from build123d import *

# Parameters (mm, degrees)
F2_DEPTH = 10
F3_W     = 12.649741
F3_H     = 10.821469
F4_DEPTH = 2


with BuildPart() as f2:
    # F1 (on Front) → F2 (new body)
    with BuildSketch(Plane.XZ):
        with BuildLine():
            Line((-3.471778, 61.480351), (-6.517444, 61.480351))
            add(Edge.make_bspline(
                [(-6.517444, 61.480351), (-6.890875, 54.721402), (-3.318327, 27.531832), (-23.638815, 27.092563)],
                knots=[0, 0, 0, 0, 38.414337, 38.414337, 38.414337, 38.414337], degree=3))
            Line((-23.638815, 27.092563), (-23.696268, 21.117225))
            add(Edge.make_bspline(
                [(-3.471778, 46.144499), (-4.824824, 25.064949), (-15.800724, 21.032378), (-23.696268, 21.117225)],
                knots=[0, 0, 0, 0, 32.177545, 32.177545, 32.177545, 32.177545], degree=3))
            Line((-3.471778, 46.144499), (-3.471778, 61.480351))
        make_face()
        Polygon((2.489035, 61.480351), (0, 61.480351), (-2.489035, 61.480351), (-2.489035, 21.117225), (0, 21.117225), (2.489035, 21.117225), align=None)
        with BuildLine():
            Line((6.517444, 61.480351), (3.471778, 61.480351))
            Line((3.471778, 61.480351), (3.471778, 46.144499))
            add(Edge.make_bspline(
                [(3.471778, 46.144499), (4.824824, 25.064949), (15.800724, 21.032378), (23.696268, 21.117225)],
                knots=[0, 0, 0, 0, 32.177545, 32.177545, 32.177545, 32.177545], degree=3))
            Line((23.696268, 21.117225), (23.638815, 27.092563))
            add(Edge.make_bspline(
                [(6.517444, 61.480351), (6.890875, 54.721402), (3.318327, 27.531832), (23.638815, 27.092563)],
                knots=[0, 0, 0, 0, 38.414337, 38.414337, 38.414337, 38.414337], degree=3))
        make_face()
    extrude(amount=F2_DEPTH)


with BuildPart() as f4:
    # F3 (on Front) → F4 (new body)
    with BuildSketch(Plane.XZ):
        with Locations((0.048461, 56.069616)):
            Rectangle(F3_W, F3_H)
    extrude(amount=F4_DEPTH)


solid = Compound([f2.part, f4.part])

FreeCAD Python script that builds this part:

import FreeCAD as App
import Part
import Sketcher
from FreeCAD import Vector
Q = App.Units.Quantity

doc = App.newDocument("Part")
body = doc.addObject("PartDesign::Body", "Body")
body.AllowCompound = True

# Sketch on XZ plane
sketch1 = body.newObject("Sketcher::SketchObject", "Sketch")
sketch1.AttachmentSupport = (doc.getObject("XZ_Plane"), [""])
sketch1.MapMode = "FlatFace"
sketch1.addGeometry(Part.LineSegment(Vector(-3.471778, 61.480351, 0), Vector(-6.517444, 61.480351, 0)), False)
sketch1.addGeometry(Part.BSplineCurve([Vector(-6.517444, 61.480351, 0), Vector(-6.890875, 54.721402, 0), Vector(-3.318327, 27.531832, 0), Vector(-23.638815, 27.092563, 0)], [4, 4], [0, 38.414337], False, 3, [1, 1, 1, 1], False), False)
sketch1.addGeometry(Part.LineSegment(Vector(-23.638815, 27.092563, 0), Vector(-23.696268, 21.117225, 0)), False)
sketch1.addGeometry(Part.BSplineCurve([Vector(-3.471778, 46.144499, 0), Vector(-4.824824, 25.064949, 0), Vector(-15.800724, 21.032378, 0), Vector(-23.696268, 21.117225, 0)], [4, 4], [0, 32.177545], False, 3, [1, 1, 1, 1], False), False)
sketch1.addGeometry(Part.LineSegment(Vector(-3.471778, 46.144499, 0), Vector(-3.471778, 61.480351, 0)), False)
sketch1.addGeometry(Part.LineSegment(Vector(2.489035, 61.480351, 0), Vector(-2.489035, 61.480351, 0)), False)
sketch1.addGeometry(Part.LineSegment(Vector(-2.489035, 61.480351, 0), Vector(-2.489035, 21.117225, 0)), False)
sketch1.addGeometry(Part.LineSegment(Vector(-2.489035, 21.117225, 0), Vector(2.489035, 21.117225, 0)), False)
sketch1.addGeometry(Part.LineSegment(Vector(2.489035, 21.117225, 0), Vector(2.489035, 61.480351, 0)), False)
sketch1.addGeometry(Part.LineSegment(Vector(6.517444, 61.480351, 0), Vector(3.471778, 61.480351, 0)), False)
sketch1.addGeometry(Part.LineSegment(Vector(3.471778, 61.480351, 0), Vector(3.471778, 46.144499, 0)), False)
sketch1.addGeometry(Part.BSplineCurve([Vector(3.471778, 46.144499, 0), Vector(4.824824, 25.064949, 0), Vector(15.800724, 21.032378, 0), Vector(23.696268, 21.117225, 0)], [4, 4], [0, 32.177545], False, 3, [1, 1, 1, 1], False), False)
sketch1.addGeometry(Part.LineSegment(Vector(23.696268, 21.117225, 0), Vector(23.638815, 27.092563, 0)), False)
sketch1.addGeometry(Part.BSplineCurve([Vector(6.517444, 61.480351, 0), Vector(6.890875, 54.721402, 0), Vector(3.318327, 27.531832, 0), Vector(23.638815, 27.092563, 0)], [4, 4], [0, 38.414337], False, 3, [1, 1, 1, 1], False), False)
sketch1.addConstraint(Sketcher.Constraint("Block", 1))
sketch1.addConstraint(Sketcher.Constraint("Block", 3))
sketch1.addConstraint(Sketcher.Constraint("Block", 11))
sketch1.addConstraint(Sketcher.Constraint("Block", 13))
sketch1.addConstraint(Sketcher.Constraint("Coincident", 0, 2, 1, 1))
sketch1.addConstraint(Sketcher.Constraint("Coincident", 1, 2, 2, 1))
sketch1.addConstraint(Sketcher.Constraint("Coincident", 2, 2, 3, 2))
sketch1.addConstraint(Sketcher.Constraint("Coincident", 3, 1, 4, 1))
sketch1.addConstraint(Sketcher.Constraint("Coincident", 4, 2, 0, 1))
sketch1.addConstraint(Sketcher.Constraint("Coincident", 5, 2, 6, 1))
sketch1.addConstraint(Sketcher.Constraint("Coincident", 6, 2, 7, 1))
sketch1.addConstraint(Sketcher.Constraint("Coincident", 7, 2, 8, 1))
sketch1.addConstraint(Sketcher.Constraint("Coincident", 8, 2, 5, 1))
sketch1.addConstraint(Sketcher.Constraint("Coincident", 9, 2, 10, 1))
sketch1.addConstraint(Sketcher.Constraint("Coincident", 10, 2, 11, 1))
sketch1.addConstraint(Sketcher.Constraint("Coincident", 11, 2, 12, 1))
sketch1.addConstraint(Sketcher.Constraint("Coincident", 12, 2, 13, 2))
sketch1.addConstraint(Sketcher.Constraint("Coincident", 13, 1, 9, 1))
sketch1.addConstraint(Sketcher.Constraint("Horizontal", 0))
sketch1.addConstraint(Sketcher.Constraint("Vertical", 4))
sketch1.addConstraint(Sketcher.Constraint("Horizontal", 5))
sketch1.addConstraint(Sketcher.Constraint("Vertical", 6))
sketch1.addConstraint(Sketcher.Constraint("Horizontal", 7))
sketch1.addConstraint(Sketcher.Constraint("Vertical", 8))
sketch1.addConstraint(Sketcher.Constraint("Horizontal", 9))
sketch1.addConstraint(Sketcher.Constraint("Vertical", 10))
sketch1.addConstraint(Sketcher.Constraint("Horizontal", 4, 2, 5, 2))
sketch1.addConstraint(Sketcher.Constraint("Horizontal", 2, 2, 6, 2))
sketch1.addConstraint(Sketcher.Constraint("DistanceX", 5, 2, 5, 1, Q("4.97807 mm")))
sketch1.addConstraint(Sketcher.Constraint("DistanceX", 0, 2, 5, 2, Q("4.028409 mm")))
pad1 = body.newObject("PartDesign::Pad", "Pad")
pad1.Profile = sketch1
pad1.Length = 10
body2 = doc.addObject("PartDesign::Body", "Body001")

# Sketch on XZ plane
sketch2 = body2.newObject("Sketcher::SketchObject", "Sketch001")
sketch2.AttachmentSupport = (doc.getObject("XZ_Plane001"), [""])
sketch2.MapMode = "FlatFace"
sketch2.addGeometry(Part.LineSegment(Vector(-6.276409, 61.480351, 0), Vector(-6.276409, 50.658881, 0)), False)
sketch2.addGeometry(Part.LineSegment(Vector(-6.276409, 50.658881, 0), Vector(6.373331, 50.658881, 0)), False)
sketch2.addGeometry(Part.LineSegment(Vector(6.373331, 50.658881, 0), Vector(6.373331, 61.480351, 0)), False)
sketch2.addGeometry(Part.LineSegment(Vector(6.373331, 61.480351, 0), Vector(-6.276409, 61.480351, 0)), False)
sketch2.addConstraint(Sketcher.Constraint("Coincident", 0, 2, 1, 1))
sketch2.addConstraint(Sketcher.Constraint("Coincident", 1, 2, 2, 1))
sketch2.addConstraint(Sketcher.Constraint("Coincident", 2, 2, 3, 1))
sketch2.addConstraint(Sketcher.Constraint("Coincident", 3, 2, 0, 1))
sketch2.addConstraint(Sketcher.Constraint("Vertical", 0))
sketch2.addConstraint(Sketcher.Constraint("Horizontal", 1))
sketch2.addConstraint(Sketcher.Constraint("Vertical", 2))
sketch2.addConstraint(Sketcher.Constraint("Horizontal", 3))
sketch2.addConstraint(Sketcher.Constraint("DistanceX", 1, 1, 1, 2, Q("12.649741 mm")))
sketch2.addConstraint(Sketcher.Constraint("DistanceY", 0, 2, 0, 1, Q("10.821469 mm")))
sketch2.addConstraint(Sketcher.Constraint("DistanceX", 0, 2, -1, 1, Q("6.276409 mm")))
sketch2.addConstraint(Sketcher.Constraint("DistanceY", -1, 1, 0, 2, Q("50.658881 mm")))
pad2 = body2.newObject("PartDesign::Pad", "Pad001")
pad2.Profile = sketch2
pad2.Length = 2

doc.recompute()
